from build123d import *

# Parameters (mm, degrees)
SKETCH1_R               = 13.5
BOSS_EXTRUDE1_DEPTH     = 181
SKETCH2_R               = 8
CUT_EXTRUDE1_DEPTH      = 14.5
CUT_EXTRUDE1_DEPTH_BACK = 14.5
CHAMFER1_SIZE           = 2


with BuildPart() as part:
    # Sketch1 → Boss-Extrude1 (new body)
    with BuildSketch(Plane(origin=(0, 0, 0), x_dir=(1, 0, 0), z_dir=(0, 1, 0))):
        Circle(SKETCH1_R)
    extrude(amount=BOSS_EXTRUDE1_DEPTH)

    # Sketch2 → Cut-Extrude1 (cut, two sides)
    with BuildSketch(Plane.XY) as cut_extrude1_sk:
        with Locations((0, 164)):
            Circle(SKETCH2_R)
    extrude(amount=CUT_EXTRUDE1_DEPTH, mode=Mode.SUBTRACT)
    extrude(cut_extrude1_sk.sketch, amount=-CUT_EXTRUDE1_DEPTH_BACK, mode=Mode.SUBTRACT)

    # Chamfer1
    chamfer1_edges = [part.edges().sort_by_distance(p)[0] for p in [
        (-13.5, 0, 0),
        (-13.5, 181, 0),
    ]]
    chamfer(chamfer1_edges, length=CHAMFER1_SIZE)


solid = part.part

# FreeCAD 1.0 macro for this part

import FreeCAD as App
import Part
import Sketcher

V = App.Vector


def edges_at(feature, points):
    """Names of the edges that pass closest to the given points."""
    edges = feature.Shape.Edges
    near = lambda p: min(range(len(edges)), key=lambda i: edges[i].distToShape(Part.Vertex(*p))[0])
    return sorted({f"Edge{near(p) + 1}" for p in points})

doc = App.newDocument("Part")
params = doc.addObject("Spreadsheet::Sheet", "Params")
for row, (alias, value) in enumerate([
    ("sketch1_diameter", "27 mm"),
    ("pad1_length", "181 mm"),
    ("sketch2_diameter", "16 mm"),
    ("chamfer_size", "2 mm"),
], start=1):
    params.set(f"A{row}", alias)
    params.set(f"B{row}", "=" + value)
    params.setAlias(f"B{row}", alias)

body = doc.addObject("PartDesign::Body", "Body")

sketch1 = body.newObject("Sketcher::SketchObject", "Sketch")
sketch1.AttachmentSupport = (doc.getObject("XZ_Plane"), [""])
sketch1.MapMode = "FlatFace"
sketch1.addGeometry(Part.Circle(V(0, 0, 0), V(0, 0, 1), 14), False)
sketch1.addConstraint([
    Sketcher.Constraint("Coincident", 0, 3, -1, 1),
    Sketcher.Constraint("Diameter", 0, 27.0),
])
sketch1.setExpression("Constraints[1]", "Params.sketch1_diameter")
pad1 = body.newObject("PartDesign::Pad", "Pad")
pad1.Profile = sketch1
pad1.setExpression("Length", "Params.pad1_length")
pad1.Reversed = True

sketch2 = body.newObject("Sketcher::SketchObject", "Sketch001")
sketch2.AttachmentSupport = (doc.getObject("XY_Plane"), [""])
sketch2.MapMode = "FlatFace"
sketch2.addGeometry(Part.Circle(V(0, 164, 0), V(0, 0, 1), 8), False)
sketch2.addConstraint([
    Sketcher.Constraint("PointOnObject", 0, 3, -2),
    Sketcher.Constraint("Diameter", 0, 16.0),
    Sketcher.Constraint("DistanceY", -1, 1, 0, 3, 164.0),
])
sketch2.setExpression("Constraints[1]", "Params.sketch2_diameter")
pocket1 = body.newObject("PartDesign::Pocket", "Pocket")
pocket1.Profile = sketch2
pocket1.Type = "ThroughAll"
pocket1.Midplane = True
doc.recompute()

chamfer = body.newObject("PartDesign::Chamfer", "Chamfer")
chamfer.Base = (pocket1, edges_at(pocket1, [(-13.5, 0, 0), (-13.5, 181, 0)]))
chamfer.setExpression("Size", "Params.chamfer_size")

doc.recompute()
